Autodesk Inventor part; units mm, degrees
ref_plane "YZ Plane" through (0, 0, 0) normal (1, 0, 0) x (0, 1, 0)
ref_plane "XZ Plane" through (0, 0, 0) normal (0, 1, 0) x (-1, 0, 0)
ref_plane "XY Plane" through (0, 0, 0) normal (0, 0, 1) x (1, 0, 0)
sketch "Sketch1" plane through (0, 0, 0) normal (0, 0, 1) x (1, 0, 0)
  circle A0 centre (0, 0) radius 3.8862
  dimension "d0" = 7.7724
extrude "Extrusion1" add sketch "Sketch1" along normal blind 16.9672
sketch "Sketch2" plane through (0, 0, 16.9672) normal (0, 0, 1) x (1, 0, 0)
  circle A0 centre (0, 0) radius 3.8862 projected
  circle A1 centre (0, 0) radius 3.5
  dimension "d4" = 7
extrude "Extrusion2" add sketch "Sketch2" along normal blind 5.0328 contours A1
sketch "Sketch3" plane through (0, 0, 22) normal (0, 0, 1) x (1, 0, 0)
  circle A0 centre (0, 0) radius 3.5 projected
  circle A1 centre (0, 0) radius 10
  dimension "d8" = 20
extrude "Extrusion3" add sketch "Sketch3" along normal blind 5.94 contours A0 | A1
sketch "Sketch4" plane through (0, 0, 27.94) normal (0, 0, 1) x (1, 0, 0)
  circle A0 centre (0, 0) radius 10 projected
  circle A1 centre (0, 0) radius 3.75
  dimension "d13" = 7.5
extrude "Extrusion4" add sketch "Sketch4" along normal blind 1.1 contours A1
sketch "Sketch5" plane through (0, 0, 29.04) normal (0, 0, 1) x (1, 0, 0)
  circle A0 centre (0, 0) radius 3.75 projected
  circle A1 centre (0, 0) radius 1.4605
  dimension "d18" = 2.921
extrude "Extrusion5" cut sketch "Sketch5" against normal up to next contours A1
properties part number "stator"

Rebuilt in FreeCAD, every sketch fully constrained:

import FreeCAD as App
import Part
import Sketcher

V = App.Vector
Q = App.Units.Quantity

doc = App.newDocument("Part")
body = doc.addObject("PartDesign::Body", "Body")

sketch1 = doc.addObject("Sketcher::SketchObject", "Sketch")
body.addObject(sketch1)
sketch1.AttachmentSupport = (doc.XY_Plane, [""])
sketch1.MapMode = "FlatFace"
sketch1.addGeometry(Part.Circle(V(0, 0, 0), V(0, 0, 1), 3.9), False)
sketch1.addConstraint([
    Sketcher.Constraint("Coincident", 0, 3, -1, 1),
    Sketcher.Constraint("Diameter", 0, Q("0.306 in")),
])
pad1 = doc.addObject("PartDesign::Pad", "Pad")
body.addObject(pad1)
pad1.Profile = sketch1
pad1.Length = Q("0.668 in")

sketch2 = doc.addObject("Sketcher::SketchObject", "Sketch001")
body.addObject(sketch2)
sketch2.AttachmentSupport = (doc.XY_Plane, [""])
sketch2.MapMode = "FlatFace"
sketch2.AttachmentOffset = App.Placement(V(0, 0, 0.668 * 25.4), App.Rotation())
sketch2.addGeometry(Part.Circle(V(0, 0, 0), V(0, 0, 1), 3.5), False)
sketch2.addConstraint([
    Sketcher.Constraint("Coincident", 0, 3, -1, 1),
    Sketcher.Constraint("Diameter", 0, Q("0.2756 in")),
])
pad2 = doc.addObject("PartDesign::Pad", "Pad001")
body.addObject(pad2)
pad2.Profile = sketch2
pad2.Length = 5.0328

sketch3 = doc.addObject("Sketcher::SketchObject", "Sketch002")
body.addObject(sketch3)
sketch3.AttachmentSupport = (doc.XY_Plane, [""])
sketch3.MapMode = "FlatFace"
sketch3.AttachmentOffset = App.Placement(V(0, 0, 22), App.Rotation())
sketch3.addGeometry(Part.Circle(V(0, 0, 0), V(0, 0, 1), 10), False)
sketch3.addConstraint([
    Sketcher.Constraint("Coincident", 0, 3, -1, 1),
    Sketcher.Constraint("Diameter", 0, Q("0.7874 in")),
])
pad3 = doc.addObject("PartDesign::Pad", "Pad002")
body.addObject(pad3)
pad3.Profile = sketch3
pad3.Length = 5.94

sketch4 = doc.addObject("Sketcher::SketchObject", "Sketch003")
body.addObject(sketch4)
sketch4.AttachmentSupport = (doc.XY_Plane, [""])
sketch4.MapMode = "FlatFace"
sketch4.AttachmentOffset = App.Placement(V(0, 0, 1.1 * 25.4), App.Rotation())
sketch4.addGeometry(Part.Circle(V(0, 0, 0), V(0, 0, 1), 3.8), False)
sketch4.addConstraint([
    Sketcher.Constraint("Coincident", 0, 3, -1, 1),
    Sketcher.Constraint("Diameter", 0, Q("7.5 mm")),
])
pad4 = doc.addObject("PartDesign::Pad", "Pad003")
body.addObject(pad4)
pad4.Profile = sketch4
pad4.Length = Q("0.0433071 in")

sketch5 = doc.addObject("Sketcher::SketchObject", "Sketch004")
body.addObject(sketch5)
sketch5.AttachmentSupport = (doc.XY_Plane, [""])
sketch5.MapMode = "FlatFace"
sketch5.AttachmentOffset = App.Placement(V(0, 0, 1.1433071 * 25.4), App.Rotation())
sketch5.addGeometry(Part.Circle(V(0, 0, 0), V(0, 0, 1), 1.5), False)
sketch5.addConstraint([
    Sketcher.Constraint("Coincident", 0, 3, -1, 1),
    Sketcher.Constraint("Diameter", 0, Q("0.115 in")),
])
pocket1 = doc.addObject("PartDesign::Pocket", "Pocket")
body.addObject(pocket1)
pocket1.Profile = sketch5
pocket1.Type = "UpToFirst"

doc.recompute()
